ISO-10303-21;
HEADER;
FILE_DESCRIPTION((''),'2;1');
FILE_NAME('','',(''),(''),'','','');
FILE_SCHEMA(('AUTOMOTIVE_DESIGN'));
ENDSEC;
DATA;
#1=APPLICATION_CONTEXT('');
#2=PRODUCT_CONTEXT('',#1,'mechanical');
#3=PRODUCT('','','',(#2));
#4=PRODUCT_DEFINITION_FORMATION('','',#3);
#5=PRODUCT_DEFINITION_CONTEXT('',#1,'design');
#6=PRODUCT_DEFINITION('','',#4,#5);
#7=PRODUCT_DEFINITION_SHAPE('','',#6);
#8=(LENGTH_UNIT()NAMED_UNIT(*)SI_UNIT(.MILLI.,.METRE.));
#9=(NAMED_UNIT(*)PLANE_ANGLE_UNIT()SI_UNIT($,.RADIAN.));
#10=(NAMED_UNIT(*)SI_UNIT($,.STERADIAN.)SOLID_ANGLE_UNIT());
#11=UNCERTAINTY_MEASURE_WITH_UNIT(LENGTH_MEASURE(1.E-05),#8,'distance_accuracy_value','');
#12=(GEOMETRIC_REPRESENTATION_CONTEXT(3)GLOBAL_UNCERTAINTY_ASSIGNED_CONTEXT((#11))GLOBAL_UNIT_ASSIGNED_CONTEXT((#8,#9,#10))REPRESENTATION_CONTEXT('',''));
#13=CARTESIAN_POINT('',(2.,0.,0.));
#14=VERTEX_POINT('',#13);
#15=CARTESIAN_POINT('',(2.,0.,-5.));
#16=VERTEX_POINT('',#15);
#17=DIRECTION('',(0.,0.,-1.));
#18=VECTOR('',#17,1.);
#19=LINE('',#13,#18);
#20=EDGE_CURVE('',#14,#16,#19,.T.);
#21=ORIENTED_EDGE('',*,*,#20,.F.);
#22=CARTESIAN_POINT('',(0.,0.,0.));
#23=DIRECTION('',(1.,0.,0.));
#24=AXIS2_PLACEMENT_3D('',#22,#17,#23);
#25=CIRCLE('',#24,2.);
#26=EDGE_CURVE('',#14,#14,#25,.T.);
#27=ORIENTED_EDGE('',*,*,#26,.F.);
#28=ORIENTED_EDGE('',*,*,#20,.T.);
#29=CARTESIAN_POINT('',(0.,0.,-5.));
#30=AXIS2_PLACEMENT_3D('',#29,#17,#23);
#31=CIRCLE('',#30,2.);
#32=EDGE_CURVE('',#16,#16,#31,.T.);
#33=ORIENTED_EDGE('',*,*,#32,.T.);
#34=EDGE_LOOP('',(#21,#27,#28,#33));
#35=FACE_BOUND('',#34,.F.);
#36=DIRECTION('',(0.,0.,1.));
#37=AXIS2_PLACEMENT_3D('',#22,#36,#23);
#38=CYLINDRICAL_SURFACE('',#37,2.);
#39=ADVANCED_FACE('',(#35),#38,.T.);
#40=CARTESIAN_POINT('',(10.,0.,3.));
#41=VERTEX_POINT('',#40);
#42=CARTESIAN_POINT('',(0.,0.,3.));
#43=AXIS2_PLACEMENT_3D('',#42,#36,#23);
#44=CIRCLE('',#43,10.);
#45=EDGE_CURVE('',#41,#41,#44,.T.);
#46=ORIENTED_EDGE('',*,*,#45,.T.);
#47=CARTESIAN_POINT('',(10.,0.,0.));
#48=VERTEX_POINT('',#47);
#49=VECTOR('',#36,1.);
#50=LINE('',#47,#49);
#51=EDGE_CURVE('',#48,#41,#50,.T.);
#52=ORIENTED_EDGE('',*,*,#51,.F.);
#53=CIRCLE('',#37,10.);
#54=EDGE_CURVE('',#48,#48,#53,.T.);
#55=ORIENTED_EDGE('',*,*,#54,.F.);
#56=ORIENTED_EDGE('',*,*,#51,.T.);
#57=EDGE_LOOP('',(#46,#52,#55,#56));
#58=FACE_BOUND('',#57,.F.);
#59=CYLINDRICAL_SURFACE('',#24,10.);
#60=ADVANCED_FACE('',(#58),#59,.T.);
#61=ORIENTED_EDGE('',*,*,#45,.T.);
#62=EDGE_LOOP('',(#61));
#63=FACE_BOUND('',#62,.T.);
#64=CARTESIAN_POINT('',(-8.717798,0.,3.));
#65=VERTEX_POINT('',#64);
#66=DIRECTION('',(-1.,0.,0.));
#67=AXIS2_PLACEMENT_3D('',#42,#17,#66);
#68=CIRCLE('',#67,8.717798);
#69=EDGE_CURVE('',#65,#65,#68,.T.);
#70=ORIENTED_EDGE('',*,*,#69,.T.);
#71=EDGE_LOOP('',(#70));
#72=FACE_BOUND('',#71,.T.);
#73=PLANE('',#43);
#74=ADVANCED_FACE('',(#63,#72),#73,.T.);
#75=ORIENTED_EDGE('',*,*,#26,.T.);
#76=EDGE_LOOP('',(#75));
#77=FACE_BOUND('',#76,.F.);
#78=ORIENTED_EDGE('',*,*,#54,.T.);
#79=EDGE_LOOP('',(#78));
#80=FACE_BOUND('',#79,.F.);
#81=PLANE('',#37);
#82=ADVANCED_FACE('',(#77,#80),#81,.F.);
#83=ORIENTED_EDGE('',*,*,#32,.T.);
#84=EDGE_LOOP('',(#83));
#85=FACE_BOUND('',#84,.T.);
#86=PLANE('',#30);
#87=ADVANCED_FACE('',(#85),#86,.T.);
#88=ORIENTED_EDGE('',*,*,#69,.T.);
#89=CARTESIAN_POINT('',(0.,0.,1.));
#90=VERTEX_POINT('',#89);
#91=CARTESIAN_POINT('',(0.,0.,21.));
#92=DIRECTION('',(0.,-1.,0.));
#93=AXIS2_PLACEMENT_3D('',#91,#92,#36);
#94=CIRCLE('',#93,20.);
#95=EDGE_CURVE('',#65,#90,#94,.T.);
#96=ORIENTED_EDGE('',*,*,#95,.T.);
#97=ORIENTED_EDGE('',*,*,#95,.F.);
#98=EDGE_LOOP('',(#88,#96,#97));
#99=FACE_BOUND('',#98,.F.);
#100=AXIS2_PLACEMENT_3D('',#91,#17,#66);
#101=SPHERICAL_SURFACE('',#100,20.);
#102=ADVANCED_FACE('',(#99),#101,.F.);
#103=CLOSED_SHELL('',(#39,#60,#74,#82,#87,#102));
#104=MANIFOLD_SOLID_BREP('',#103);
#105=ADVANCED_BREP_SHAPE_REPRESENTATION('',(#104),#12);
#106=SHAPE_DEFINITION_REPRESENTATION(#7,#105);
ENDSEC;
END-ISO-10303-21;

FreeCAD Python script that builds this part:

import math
import FreeCAD as App
import Part
import Sketcher
from FreeCAD import Vector

doc = App.newDocument("Part")
body = doc.addObject("PartDesign::Body", "Body")

# Sketch on XY plane
sketch1 = body.newObject("Sketcher::SketchObject", "Sketch")
sketch1.AttachmentSupport = (doc.getObject("XY_Plane"), [""])
sketch1.MapMode = "FlatFace"
sketch1.addGeometry(Part.Circle(Vector(0, 0, 0), Vector(0, 0, 1), 10), False)
sketch1.addConstraint([
    Sketcher.Constraint("Coincident", 0, 3, -1, 1),
    Sketcher.Constraint("Diameter", 0, 20.0),
])
pad1 = body.newObject("PartDesign::Pad", "Pad")
pad1.Profile = sketch1
pad1.Length = 3

# Sketch on XZ plane
sketch2 = body.newObject("Sketcher::SketchObject", "Sketch001")
sketch2.AttachmentSupport = (doc.getObject("XZ_Plane"), [""])
sketch2.MapMode = "FlatFace"
sketch2.addGeometry([
    Part.LineSegment(Vector(0, 1, 0), Vector(0, 41, 0)),
    Part.ArcOfCircle(Part.Circle(Vector(0, 21, 0), Vector(0, 0, 1), 20), math.radians(90), math.radians(270)),
], False)
sketch2.addConstraint([
    Sketcher.Constraint("Coincident", 0, 1, 1, 2),
    Sketcher.Constraint("Coincident", 1, 1, 0, 2),
    Sketcher.Constraint("Vertical", 0),
    Sketcher.Constraint("PointOnObject", 1, 3, -2),
    Sketcher.Constraint("PointOnObject", 0, 1, -2),
    Sketcher.Constraint("Radius", 1, 20.0),
    Sketcher.Constraint("DistanceY", -1, 1, 1, 3, 21.0),
])
groove = body.newObject("PartDesign::Groove", "Groove")
groove.Profile = sketch2
groove.ReferenceAxis = (sketch2, ["V_Axis"])
groove.Angle = 360

# Sketch on XY plane
sketch3 = body.newObject("Sketcher::SketchObject", "Sketch002")
sketch3.AttachmentSupport = (doc.getObject("XY_Plane"), [""])
sketch3.MapMode = "FlatFace"
sketch3.addGeometry(Part.Circle(Vector(0, 0, 0), Vector(0, 0, 1), 2), False)
sketch3.addConstraint([
    Sketcher.Constraint("Coincident", 0, 3, -1, 1),
    Sketcher.Constraint("Diameter", 0, 4.0),
])
pad2 = body.newObject("PartDesign::Pad", "Pad001")
pad2.Profile = sketch3
pad2.Length = 5
pad2.Reversed = True

doc.recompute()
